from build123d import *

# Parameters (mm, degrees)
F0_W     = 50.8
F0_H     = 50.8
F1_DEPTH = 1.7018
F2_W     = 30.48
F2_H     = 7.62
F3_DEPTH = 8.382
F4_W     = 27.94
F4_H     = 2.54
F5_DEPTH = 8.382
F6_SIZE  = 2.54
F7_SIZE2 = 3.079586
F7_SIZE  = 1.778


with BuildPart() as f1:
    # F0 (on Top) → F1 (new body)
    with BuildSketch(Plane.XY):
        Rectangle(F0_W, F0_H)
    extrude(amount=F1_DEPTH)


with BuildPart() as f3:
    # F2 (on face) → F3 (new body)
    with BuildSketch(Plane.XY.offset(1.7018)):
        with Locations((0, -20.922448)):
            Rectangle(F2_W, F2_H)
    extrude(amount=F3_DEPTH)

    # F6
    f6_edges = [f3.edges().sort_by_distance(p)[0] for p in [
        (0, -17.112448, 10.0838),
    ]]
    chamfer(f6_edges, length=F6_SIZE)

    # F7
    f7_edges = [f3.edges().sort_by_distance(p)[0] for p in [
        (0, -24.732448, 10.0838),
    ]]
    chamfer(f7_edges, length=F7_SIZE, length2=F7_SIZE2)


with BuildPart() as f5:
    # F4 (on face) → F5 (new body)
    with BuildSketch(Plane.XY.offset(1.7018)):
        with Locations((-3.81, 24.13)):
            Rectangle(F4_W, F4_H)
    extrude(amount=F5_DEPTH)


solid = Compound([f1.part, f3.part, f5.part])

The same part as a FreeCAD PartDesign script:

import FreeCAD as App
import Part
import Sketcher
from FreeCAD import Vector
Q = App.Units.Quantity


def edges_at(feature, points):
    """Names of the edges that pass closest to the given points."""
    edges = feature.Shape.Edges
    near = lambda p: min(range(len(edges)), key=lambda i: edges[i].distToShape(Part.Vertex(*p))[0])
    return sorted({f"Edge{near(p) + 1}" for p in points})

doc = App.newDocument("Part")
body = doc.addObject("PartDesign::Body", "Body")

# Sketch on XY plane
sketch1 = body.newObject("Sketcher::SketchObject", "Sketch")
sketch1.AttachmentSupport = (doc.getObject("XY_Plane"), [""])
sketch1.MapMode = "FlatFace"
sketch1.addGeometry(Part.LineSegment(Vector(-25, 25, 0), Vector(-25, -25, 0)), False)
sketch1.addGeometry(Part.LineSegment(Vector(-25, -25, 0), Vector(25, -25, 0)), False)
sketch1.addGeometry(Part.LineSegment(Vector(25, -25, 0), Vector(25, 25, 0)), False)
sketch1.addGeometry(Part.LineSegment(Vector(25, 25, 0), Vector(-25, 25, 0)), False)
sketch1.addConstraint(Sketcher.Constraint("Coincident", 0, 2, 1, 1))
sketch1.addConstraint(Sketcher.Constraint("Coincident", 1, 2, 2, 1))
sketch1.addConstraint(Sketcher.Constraint("Coincident", 2, 2, 3, 1))
sketch1.addConstraint(Sketcher.Constraint("Coincident", 3, 2, 0, 1))
sketch1.addConstraint(Sketcher.Constraint("Vertical", 0))
sketch1.addConstraint(Sketcher.Constraint("Horizontal", 1))
sketch1.addConstraint(Sketcher.Constraint("Vertical", 2))
sketch1.addConstraint(Sketcher.Constraint("Horizontal", 3))
sketch1.addConstraint(Sketcher.Constraint("Symmetric", 0, 2, 2, 2, -1, 1))
sketch1.addConstraint(Sketcher.Constraint("Equal", 3, 0))
sketch1.addConstraint(Sketcher.Constraint("DistanceX", 1, 1, 1, 2, Q("2 in")))
pad1 = body.newObject("PartDesign::Pad", "Pad")
pad1.Profile = sketch1
pad1.Length = Q("0.067 in")
body2 = doc.addObject("PartDesign::Body", "Body001")

# Sketch on XY plane
sketch2 = body2.newObject("Sketcher::SketchObject", "Sketch001")
sketch2.AttachmentSupport = (doc.getObject("XY_Plane001"), [""])
sketch2.MapMode = "FlatFace"
sketch2.AttachmentOffset = App.Placement(Vector(0, 0, 0.067 * 25.4), App.Rotation())
sketch2.addGeometry(Part.LineSegment(Vector(-15, -17, 0), Vector(-15, -25, 0)), False)
sketch2.addGeometry(Part.LineSegment(Vector(-15, -25, 0), Vector(15, -25, 0)), False)
sketch2.addGeometry(Part.LineSegment(Vector(15, -25, 0), Vector(15, -17, 0)), False)
sketch2.addGeometry(Part.LineSegment(Vector(15, -17, 0), Vector(-15, -17, 0)), False)
sketch2.addConstraint(Sketcher.Constraint("Coincident", 0, 2, 1, 1))
sketch2.addConstraint(Sketcher.Constraint("Coincident", 1, 2, 2, 1))
sketch2.addConstraint(Sketcher.Constraint("Coincident", 2, 2, 3, 1))
sketch2.addConstraint(Sketcher.Constraint("Coincident", 3, 2, 0, 1))
sketch2.addConstraint(Sketcher.Constraint("Vertical", 0))
sketch2.addConstraint(Sketcher.Constraint("Horizontal", 1))
sketch2.addConstraint(Sketcher.Constraint("Vertical", 2))
sketch2.addConstraint(Sketcher.Constraint("Horizontal", 3))
sketch2.addConstraint(Sketcher.Constraint("DistanceX", 1, 1, 1, 2, Q("1.2 in")))
sketch2.addConstraint(Sketcher.Constraint("DistanceY", 0, 2, 0, 1, Q("0.3 in")))
sketch2.addConstraint(Sketcher.Constraint("DistanceX", 0, 2, -1, 1, Q("0.6 in")))
sketch2.addConstraint(Sketcher.Constraint("DistanceY", 0, 2, -1, 1, 24.732448))
pad2 = body2.newObject("PartDesign::Pad", "Pad001")
pad2.Profile = sketch2
pad2.Length = Q("0.33 in")
doc.recompute()

chamfer = body2.newObject("PartDesign::Chamfer", "Chamfer")
chamfer.Base = (pad2, edges_at(pad2, [(0, -17.112, 10.084)]))
chamfer.Size = Q("0.1 in")
doc.recompute()

chamfer2 = body2.newObject("PartDesign::Chamfer", "Chamfer001")
chamfer2.Base = (chamfer, edges_at(chamfer, [(0, -24.732, 10.084)]))
chamfer2.ChamferType = "Two distances"
chamfer2.Size = Q("0.07 in")
chamfer2.Size2 = 3.079586
body3 = doc.addObject("PartDesign::Body", "Body002")

# Sketch on XY plane
sketch3 = body3.newObject("Sketcher::SketchObject", "Sketch002")
sketch3.AttachmentSupport = (doc.getObject("XY_Plane002"), [""])
sketch3.MapMode = "FlatFace"
sketch3.AttachmentOffset = App.Placement(Vector(0, 0, 0.067 * 25.4), App.Rotation())
sketch3.addGeometry(Part.LineSegment(Vector(-17.8, 25.4, 0), Vector(-17.8, 22.9, 0)), False)
sketch3.addGeometry(Part.LineSegment(Vector(-17.8, 22.9, 0), Vector(10.2, 22.9, 0)), False)
sketch3.addGeometry(Part.LineSegment(Vector(10.2, 22.9, 0), Vector(10.2, 25.4, 0)), False)
sketch3.addGeometry(Part.LineSegment(Vector(10.2, 25.4, 0), Vector(-17.8, 25.4, 0)), False)
sketch3.addConstraint(Sketcher.Constraint("Coincident", 0, 2, 1, 1))
sketch3.addConstraint(Sketcher.Constraint("Coincident", 1, 2, 2, 1))
sketch3.addConstraint(Sketcher.Constraint("Coincident", 2, 2, 3, 1))
sketch3.addConstraint(Sketcher.Constraint("Coincident", 3, 2, 0, 1))
sketch3.addConstraint(Sketcher.Constraint("Vertical", 0))
sketch3.addConstraint(Sketcher.Constraint("Horizontal", 1))
sketch3.addConstraint(Sketcher.Constraint("Vertical", 2))
sketch3.addConstraint(Sketcher.Constraint("Horizontal", 3))
sketch3.addConstraint(Sketcher.Constraint("DistanceX", 1, 1, 1, 2, Q("1.1 in")))
sketch3.addConstraint(Sketcher.Constraint("DistanceY", 0, 2, 0, 1, Q("0.1 in")))
sketch3.addConstraint(Sketcher.Constraint("DistanceY", -1, 1, 2, 2, Q("1 in")))
sketch3.addConstraint(Sketcher.Constraint("DistanceX", 0, 2, -1, 1, Q("0.7 in")))
pad3 = body3.newObject("PartDesign::Pad", "Pad002")
pad3.Profile = sketch3
pad3.Length = Q("0.33 in")

doc.recompute()
